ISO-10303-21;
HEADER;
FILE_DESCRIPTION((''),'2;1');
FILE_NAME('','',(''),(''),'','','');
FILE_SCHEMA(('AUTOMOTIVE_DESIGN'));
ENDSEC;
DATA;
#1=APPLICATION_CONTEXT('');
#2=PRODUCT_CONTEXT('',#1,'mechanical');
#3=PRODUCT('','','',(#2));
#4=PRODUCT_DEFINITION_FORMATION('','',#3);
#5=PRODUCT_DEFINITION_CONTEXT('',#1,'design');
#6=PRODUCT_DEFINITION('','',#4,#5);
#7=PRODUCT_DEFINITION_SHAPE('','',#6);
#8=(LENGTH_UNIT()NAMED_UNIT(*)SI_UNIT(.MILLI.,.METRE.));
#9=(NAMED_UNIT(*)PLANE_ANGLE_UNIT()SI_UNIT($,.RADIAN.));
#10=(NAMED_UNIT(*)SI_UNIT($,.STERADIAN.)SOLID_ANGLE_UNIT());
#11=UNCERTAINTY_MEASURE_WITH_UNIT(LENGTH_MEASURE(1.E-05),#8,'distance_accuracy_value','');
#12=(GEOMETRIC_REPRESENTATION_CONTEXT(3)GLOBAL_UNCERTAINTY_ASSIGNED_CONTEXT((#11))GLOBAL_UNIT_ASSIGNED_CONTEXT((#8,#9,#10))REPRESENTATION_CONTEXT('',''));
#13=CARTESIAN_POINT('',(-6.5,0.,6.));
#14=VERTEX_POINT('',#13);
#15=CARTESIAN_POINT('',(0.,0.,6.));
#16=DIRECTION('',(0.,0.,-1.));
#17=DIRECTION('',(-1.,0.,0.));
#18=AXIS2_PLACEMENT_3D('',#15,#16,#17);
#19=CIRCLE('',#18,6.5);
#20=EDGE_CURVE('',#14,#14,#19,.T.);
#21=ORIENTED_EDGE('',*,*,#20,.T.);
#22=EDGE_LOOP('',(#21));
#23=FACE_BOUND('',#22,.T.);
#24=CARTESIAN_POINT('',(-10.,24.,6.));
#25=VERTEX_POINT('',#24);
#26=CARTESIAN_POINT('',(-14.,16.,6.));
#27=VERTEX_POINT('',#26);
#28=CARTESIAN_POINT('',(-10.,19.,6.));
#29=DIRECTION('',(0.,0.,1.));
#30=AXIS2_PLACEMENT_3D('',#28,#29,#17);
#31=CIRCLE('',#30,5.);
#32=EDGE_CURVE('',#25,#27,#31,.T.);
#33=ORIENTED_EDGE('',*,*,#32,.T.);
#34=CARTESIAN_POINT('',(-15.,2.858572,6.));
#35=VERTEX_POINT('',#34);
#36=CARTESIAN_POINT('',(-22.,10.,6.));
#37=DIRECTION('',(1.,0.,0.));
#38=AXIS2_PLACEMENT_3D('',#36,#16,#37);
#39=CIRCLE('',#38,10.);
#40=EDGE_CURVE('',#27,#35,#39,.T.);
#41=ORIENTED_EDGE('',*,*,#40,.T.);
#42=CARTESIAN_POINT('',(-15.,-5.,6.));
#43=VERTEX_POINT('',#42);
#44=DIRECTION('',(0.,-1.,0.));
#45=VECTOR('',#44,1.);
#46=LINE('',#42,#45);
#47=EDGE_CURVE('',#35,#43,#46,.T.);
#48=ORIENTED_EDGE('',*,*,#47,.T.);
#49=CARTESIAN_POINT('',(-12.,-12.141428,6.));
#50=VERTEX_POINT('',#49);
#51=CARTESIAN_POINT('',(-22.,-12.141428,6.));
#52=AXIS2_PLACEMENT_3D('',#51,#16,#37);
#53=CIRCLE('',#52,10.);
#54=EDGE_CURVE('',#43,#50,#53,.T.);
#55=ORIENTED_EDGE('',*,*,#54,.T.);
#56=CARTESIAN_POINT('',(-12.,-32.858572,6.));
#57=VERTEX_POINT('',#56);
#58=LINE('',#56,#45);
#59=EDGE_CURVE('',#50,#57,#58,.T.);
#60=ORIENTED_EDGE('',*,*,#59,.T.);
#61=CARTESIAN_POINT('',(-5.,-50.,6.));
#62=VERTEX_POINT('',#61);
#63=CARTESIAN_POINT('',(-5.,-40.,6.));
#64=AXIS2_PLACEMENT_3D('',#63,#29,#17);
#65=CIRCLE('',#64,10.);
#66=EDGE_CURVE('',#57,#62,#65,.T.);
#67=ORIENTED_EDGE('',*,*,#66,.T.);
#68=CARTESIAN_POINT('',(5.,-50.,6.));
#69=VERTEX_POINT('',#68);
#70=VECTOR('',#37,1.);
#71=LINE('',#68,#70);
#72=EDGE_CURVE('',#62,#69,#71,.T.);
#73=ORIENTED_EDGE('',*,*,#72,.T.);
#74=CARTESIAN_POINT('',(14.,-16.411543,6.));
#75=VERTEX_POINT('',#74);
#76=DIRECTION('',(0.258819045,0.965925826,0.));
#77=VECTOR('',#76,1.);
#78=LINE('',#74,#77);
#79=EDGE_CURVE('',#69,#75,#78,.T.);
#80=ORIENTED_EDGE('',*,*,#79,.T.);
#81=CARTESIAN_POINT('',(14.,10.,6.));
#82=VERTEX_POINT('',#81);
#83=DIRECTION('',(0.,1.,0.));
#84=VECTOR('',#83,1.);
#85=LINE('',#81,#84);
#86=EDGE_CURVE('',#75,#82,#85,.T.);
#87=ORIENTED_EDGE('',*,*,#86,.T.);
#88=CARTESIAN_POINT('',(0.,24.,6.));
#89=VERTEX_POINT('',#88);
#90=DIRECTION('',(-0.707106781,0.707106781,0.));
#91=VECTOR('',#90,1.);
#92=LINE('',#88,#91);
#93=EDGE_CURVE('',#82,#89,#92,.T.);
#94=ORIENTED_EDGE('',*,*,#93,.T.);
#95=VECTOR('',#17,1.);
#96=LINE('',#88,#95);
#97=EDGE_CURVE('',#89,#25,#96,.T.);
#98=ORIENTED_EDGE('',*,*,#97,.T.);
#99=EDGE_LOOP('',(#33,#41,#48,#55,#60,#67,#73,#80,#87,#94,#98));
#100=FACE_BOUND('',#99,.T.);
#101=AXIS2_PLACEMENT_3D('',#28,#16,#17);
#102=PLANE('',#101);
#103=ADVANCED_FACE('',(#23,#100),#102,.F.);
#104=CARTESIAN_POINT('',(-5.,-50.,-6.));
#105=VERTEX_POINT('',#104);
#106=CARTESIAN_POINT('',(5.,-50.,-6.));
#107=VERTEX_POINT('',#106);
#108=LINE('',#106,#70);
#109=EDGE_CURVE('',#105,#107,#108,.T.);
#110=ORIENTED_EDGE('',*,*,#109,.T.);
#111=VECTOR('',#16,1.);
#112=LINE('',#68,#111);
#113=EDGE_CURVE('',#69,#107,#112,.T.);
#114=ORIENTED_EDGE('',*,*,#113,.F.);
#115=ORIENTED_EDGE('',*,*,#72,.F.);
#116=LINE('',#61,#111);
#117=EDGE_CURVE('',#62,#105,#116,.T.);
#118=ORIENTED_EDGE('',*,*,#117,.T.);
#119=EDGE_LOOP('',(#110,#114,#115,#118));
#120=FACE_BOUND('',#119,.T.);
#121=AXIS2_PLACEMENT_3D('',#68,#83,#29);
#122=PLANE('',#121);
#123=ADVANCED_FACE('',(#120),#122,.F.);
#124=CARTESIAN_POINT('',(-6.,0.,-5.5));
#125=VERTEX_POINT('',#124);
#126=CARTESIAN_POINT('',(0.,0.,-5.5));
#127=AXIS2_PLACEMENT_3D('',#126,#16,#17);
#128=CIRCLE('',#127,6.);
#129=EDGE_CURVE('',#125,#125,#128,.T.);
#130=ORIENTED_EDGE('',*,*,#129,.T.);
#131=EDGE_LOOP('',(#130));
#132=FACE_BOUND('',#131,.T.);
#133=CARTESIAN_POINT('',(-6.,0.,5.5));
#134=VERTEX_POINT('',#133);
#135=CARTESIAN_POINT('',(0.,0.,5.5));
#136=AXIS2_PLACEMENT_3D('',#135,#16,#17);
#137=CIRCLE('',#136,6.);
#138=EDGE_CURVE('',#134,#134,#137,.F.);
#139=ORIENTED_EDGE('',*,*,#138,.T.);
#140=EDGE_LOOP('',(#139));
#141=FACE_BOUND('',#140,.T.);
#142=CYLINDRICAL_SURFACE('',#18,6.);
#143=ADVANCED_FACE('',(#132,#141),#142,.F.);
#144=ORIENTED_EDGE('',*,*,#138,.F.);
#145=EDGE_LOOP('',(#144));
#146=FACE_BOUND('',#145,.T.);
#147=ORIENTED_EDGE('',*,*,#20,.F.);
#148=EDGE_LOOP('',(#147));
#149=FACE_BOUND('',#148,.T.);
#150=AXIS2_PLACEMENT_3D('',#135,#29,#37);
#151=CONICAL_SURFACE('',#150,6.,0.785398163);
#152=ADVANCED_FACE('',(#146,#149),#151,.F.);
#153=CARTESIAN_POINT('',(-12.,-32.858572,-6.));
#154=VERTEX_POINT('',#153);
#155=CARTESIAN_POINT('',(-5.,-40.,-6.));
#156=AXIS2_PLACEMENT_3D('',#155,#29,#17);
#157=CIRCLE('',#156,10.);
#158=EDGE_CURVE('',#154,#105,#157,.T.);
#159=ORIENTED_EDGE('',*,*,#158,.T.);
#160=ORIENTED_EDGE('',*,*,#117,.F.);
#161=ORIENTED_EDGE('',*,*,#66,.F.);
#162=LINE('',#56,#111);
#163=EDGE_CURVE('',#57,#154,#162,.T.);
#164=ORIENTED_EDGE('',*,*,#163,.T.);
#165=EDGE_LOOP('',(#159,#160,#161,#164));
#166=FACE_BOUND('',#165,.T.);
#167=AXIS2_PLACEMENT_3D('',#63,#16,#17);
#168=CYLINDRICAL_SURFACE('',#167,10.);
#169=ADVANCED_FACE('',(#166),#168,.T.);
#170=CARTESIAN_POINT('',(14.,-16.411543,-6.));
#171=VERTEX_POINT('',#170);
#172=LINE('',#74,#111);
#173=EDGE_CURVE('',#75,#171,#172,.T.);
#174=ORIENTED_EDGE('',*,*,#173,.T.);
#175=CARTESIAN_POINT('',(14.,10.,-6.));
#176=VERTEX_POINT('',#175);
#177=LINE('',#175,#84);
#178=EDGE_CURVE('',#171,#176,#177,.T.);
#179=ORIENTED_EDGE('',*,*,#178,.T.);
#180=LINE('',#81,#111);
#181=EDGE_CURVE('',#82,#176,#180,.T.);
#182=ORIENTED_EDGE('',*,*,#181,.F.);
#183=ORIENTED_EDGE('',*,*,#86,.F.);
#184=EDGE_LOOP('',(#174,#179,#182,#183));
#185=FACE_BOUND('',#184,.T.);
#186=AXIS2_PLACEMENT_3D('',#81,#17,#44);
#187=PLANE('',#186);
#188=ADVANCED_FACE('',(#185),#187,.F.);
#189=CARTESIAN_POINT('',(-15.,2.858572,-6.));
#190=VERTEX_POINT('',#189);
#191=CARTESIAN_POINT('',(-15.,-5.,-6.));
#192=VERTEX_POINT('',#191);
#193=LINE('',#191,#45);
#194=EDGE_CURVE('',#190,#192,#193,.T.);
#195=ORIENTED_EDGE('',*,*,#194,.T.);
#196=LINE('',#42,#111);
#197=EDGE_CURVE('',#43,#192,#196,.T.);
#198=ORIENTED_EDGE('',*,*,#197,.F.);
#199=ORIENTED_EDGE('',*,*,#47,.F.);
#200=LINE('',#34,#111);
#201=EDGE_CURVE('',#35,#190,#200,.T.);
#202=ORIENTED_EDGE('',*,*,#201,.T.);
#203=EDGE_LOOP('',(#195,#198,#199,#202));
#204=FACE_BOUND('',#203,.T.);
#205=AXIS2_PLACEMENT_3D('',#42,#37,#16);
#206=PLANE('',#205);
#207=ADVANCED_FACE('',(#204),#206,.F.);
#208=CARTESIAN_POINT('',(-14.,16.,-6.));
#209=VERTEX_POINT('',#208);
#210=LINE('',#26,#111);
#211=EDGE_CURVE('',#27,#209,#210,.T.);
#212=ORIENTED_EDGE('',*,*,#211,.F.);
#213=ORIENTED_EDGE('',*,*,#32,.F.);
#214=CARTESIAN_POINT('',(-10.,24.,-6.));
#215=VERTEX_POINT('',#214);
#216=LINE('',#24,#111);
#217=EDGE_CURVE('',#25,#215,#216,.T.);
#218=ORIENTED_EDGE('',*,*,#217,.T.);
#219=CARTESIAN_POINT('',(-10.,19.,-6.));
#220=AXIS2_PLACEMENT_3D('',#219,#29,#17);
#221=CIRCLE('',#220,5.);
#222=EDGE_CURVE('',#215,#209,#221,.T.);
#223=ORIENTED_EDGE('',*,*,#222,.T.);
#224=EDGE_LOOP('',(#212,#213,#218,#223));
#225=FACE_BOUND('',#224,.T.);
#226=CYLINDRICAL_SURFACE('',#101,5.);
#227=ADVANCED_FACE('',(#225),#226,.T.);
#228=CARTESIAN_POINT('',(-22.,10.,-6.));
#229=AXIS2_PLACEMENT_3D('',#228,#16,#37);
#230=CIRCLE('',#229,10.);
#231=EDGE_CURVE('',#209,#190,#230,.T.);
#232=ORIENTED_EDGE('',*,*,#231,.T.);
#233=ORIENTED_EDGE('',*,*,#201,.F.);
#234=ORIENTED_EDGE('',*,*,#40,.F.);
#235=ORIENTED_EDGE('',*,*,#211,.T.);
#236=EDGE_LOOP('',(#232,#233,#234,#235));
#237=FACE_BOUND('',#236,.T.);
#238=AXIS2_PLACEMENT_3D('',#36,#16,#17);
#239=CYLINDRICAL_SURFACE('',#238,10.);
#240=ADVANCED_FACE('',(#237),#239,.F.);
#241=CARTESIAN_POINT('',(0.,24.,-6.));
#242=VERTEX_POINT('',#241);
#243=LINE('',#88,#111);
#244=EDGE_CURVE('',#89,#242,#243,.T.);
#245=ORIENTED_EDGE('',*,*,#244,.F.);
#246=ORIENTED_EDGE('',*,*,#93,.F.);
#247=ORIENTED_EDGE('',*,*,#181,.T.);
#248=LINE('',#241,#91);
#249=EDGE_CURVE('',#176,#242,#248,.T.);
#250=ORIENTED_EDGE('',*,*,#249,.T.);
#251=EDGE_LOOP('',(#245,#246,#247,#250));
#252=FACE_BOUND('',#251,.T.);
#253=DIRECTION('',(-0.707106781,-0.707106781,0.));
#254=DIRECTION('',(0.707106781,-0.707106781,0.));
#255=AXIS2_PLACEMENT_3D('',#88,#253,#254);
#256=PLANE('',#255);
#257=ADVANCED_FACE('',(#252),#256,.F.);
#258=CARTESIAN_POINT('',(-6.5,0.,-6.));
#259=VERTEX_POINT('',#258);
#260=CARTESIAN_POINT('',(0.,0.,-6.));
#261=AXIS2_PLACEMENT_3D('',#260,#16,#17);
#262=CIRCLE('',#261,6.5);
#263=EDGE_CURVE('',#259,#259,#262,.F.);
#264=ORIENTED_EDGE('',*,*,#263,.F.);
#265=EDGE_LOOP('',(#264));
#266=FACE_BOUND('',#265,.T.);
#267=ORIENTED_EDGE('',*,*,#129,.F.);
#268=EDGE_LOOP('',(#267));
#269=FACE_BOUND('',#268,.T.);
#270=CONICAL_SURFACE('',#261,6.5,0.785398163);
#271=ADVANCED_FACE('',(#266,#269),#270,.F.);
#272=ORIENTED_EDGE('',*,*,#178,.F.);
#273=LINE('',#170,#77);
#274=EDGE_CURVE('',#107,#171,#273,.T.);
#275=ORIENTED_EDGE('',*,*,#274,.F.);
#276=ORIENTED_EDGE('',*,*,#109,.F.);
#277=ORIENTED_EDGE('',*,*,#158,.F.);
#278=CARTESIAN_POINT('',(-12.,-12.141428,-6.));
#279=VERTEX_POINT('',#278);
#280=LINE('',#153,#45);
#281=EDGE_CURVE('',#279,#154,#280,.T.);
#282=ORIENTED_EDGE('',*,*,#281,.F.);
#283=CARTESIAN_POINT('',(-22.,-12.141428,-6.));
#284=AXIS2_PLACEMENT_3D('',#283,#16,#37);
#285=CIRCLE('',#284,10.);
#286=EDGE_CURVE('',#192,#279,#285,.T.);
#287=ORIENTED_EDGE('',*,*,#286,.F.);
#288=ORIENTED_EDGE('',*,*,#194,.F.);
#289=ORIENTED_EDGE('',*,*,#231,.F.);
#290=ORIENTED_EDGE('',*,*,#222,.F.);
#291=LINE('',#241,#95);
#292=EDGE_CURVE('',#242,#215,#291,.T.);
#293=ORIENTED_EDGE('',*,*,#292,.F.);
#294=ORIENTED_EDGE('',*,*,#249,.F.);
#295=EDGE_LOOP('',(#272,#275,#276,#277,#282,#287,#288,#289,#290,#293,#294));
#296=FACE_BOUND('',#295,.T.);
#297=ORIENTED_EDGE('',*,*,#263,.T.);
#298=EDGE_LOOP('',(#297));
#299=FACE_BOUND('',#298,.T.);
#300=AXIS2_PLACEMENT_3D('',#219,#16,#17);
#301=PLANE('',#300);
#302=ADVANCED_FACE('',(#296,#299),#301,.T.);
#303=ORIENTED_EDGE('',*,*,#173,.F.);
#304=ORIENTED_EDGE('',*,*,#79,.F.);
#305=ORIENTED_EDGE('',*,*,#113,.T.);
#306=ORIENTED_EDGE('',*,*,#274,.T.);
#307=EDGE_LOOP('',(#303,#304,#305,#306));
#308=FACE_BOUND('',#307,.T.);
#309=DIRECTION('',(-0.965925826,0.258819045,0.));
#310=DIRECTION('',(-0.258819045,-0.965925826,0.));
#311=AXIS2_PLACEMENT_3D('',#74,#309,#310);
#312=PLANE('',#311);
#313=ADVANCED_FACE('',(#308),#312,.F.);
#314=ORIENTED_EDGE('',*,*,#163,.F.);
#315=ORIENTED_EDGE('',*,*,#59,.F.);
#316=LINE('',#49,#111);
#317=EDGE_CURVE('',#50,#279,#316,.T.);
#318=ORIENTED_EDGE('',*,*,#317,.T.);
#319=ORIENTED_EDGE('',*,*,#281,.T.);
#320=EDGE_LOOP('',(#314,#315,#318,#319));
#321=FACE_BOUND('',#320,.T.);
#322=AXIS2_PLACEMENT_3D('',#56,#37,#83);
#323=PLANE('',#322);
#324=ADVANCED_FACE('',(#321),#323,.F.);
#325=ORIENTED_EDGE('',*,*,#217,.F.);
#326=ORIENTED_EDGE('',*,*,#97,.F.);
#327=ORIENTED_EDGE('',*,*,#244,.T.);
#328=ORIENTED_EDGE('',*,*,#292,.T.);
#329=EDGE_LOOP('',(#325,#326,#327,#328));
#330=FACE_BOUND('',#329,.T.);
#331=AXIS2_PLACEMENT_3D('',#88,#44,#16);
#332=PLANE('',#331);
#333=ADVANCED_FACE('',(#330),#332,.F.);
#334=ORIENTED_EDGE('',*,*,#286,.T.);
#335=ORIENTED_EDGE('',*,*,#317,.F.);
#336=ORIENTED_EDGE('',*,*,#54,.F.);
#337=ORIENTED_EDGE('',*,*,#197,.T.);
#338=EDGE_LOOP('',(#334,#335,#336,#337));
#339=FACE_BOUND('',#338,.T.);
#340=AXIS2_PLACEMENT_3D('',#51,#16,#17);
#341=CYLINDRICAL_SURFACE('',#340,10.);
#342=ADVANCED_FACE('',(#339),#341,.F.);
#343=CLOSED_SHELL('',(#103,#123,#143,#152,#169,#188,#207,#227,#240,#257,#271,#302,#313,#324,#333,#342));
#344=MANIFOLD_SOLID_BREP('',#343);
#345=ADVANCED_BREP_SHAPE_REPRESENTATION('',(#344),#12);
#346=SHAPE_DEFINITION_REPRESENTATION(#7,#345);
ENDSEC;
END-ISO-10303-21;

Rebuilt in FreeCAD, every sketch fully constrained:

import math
import FreeCAD as App
import Part
import Sketcher
from FreeCAD import Vector
Q = App.Units.Quantity


def edges_at(feature, points):
    """Names of the edges that pass closest to the given points."""
    edges = feature.Shape.Edges
    near = lambda p: min(range(len(edges)), key=lambda i: edges[i].distToShape(Part.Vertex(*p))[0])
    return sorted({f"Edge{near(p) + 1}" for p in points})

doc = App.newDocument("Part")
params = doc.addObject("Spreadsheet::Sheet", "Params")
for row, (alias, value) in enumerate([
    ("sketch1_diameter", "12 mm"),
    ("sketch1_radius", "5 mm"),
    ("sketch1_radius2", "10 mm"),
    ("sketch1_width", "10 mm"),
    ("pad1_length", "12 mm"),
    ("chamfer_size", "0.5 mm"),
], start=1):
    params.set(f"A{row}", alias)
    params.set(f"B{row}", "=" + value)
    params.setAlias(f"B{row}", alias)

body = doc.addObject("PartDesign::Body", "Body")

# Sketch on XY plane
sketch1 = body.newObject("Sketcher::SketchObject", "Sketch")
sketch1.AttachmentSupport = (doc.getObject("XY_Plane"), [""])
sketch1.MapMode = "FlatFace"
sketch1.addGeometry([
    Part.LineSegment(Vector(14, 10, 0), Vector(0, 24, 0)),  # 0
    Part.LineSegment(Vector(0, 24, 0), Vector(-10, 24, 0)),  # 1
    Part.ArcOfCircle(Part.Circle(Vector(-10, 19, 0), Vector(0, 0, 1), 5), math.radians(90), math.radians(216.869898)),  # 2
    Part.ArcOfCircle(Part.Circle(Vector(-22, 10, 0), Vector(0, 0, 1), 10), math.radians(-45.572996), math.radians(36.869898)),  # 3
    Part.LineSegment(Vector(-15, 2.858572, 0), Vector(-15, -5, 0)),  # 4
    Part.ArcOfCircle(Part.Circle(Vector(-22, -12.141428, 0), Vector(0, 0, 1), 10), math.radians(0), math.radians(45.572996)),  # 5
    Part.LineSegment(Vector(-12, -12.141428, 0), Vector(-12, -32.858572, 0)),  # 6
    Part.ArcOfCircle(Part.Circle(Vector(-5, -40, 0), Vector(0, 0, 1), 10), math.radians(134.427004), math.radians(270)),  # 7
    Part.LineSegment(Vector(-5, -50, 0), Vector(5, -50, 0)),  # 8
    Part.LineSegment(Vector(5, -50, 0), Vector(14, -16.411543, 0)),  # 9
    Part.LineSegment(Vector(14, -16.411543, 0), Vector(14, 10, 0)),  # 10
    Part.Circle(Vector(0, 0, 0), Vector(0, 0, 1), 6),  # 11
], False)
sketch1.addConstraint([
    Sketcher.Constraint("Coincident", 0, 2, 1, 1),
    Sketcher.Constraint("Tangent", 1, 2, 2, 1),
    Sketcher.Constraint("Tangent", 2, 2, 3, 2),
    Sketcher.Constraint("Coincident", 3, 1, 4, 1),
    Sketcher.Constraint("Coincident", 4, 2, 5, 2),
    Sketcher.Constraint("Tangent", 5, 1, 6, 1),
    Sketcher.Constraint("Coincident", 6, 2, 7, 1),
    Sketcher.Constraint("Tangent", 7, 2, 8, 1),
    Sketcher.Constraint("Coincident", 8, 2, 9, 1),
    Sketcher.Constraint("Coincident", 9, 2, 10, 1),
    Sketcher.Constraint("Coincident", 10, 2, 0, 1),
    Sketcher.Constraint("Horizontal", 1),
    Sketcher.Constraint("Vertical", 4),
    Sketcher.Constraint("Vertical", 6),
    Sketcher.Constraint("Horizontal", 8),
    Sketcher.Constraint("Vertical", 10),
    Sketcher.Constraint("Coincident", 11, 3, -1, 1),
    Sketcher.Constraint("Equal", 3, 5),
    Sketcher.Constraint("Equal", 5, 7),
    Sketcher.Constraint("PointOnObject", 0, 2, -2),
    Sketcher.Constraint("Horizontal", 3, 3, 10, 2),
    Sketcher.Constraint("Vertical", 3, 3, 5, 3),
    Sketcher.Constraint("Equal", 1, 8),
    Sketcher.Constraint("Diameter", 11, 12.0),
    Sketcher.Constraint("Radius", 2, 5.0),
    Sketcher.Constraint("Radius", 3, 10.0),
    Sketcher.Constraint("DistanceX", 1, 2, 1, 1, 10.0),
    Sketcher.Constraint("Angle", 0, Q("135 deg")),
    Sketcher.Constraint("Angle", 9, Q("75 deg")),
    Sketcher.Constraint("DistanceY", -1, 1, 2, 3, 19.0),
    Sketcher.Constraint("DistanceX", 3, 3, -1, 1, 22.0),
    Sketcher.Constraint("DistanceX", 7, 3, -1, 1, 5.0),
    Sketcher.Constraint("DistanceY", 7, 3, -1, 1, 40.0),
    Sketcher.Constraint("DistanceX", 3, 1, -1, 1, 15.0),
    Sketcher.Constraint("DistanceY", 4, 2, -1, 1, 5.0),
])
sketch1.setExpression("Constraints[23]", "Params.sketch1_diameter")
sketch1.setExpression("Constraints[24]", "Params.sketch1_radius")
sketch1.setExpression("Constraints[25]", "Params.sketch1_radius2")
sketch1.setExpression("Constraints[26]", "Params.sketch1_width")
pad1 = body.newObject("PartDesign::Pad", "Pad")
pad1.Profile = sketch1
pad1.setExpression("Length", "Params.pad1_length")
pad1.Midplane = True
doc.recompute()

chamfer = body.newObject("PartDesign::Chamfer", "Chamfer")
chamfer.Base = (pad1, edges_at(pad1, [(-6, 0, -6), (-6, 0, 6)]))
chamfer.setExpression("Size", "Params.chamfer_size")

doc.recompute()
